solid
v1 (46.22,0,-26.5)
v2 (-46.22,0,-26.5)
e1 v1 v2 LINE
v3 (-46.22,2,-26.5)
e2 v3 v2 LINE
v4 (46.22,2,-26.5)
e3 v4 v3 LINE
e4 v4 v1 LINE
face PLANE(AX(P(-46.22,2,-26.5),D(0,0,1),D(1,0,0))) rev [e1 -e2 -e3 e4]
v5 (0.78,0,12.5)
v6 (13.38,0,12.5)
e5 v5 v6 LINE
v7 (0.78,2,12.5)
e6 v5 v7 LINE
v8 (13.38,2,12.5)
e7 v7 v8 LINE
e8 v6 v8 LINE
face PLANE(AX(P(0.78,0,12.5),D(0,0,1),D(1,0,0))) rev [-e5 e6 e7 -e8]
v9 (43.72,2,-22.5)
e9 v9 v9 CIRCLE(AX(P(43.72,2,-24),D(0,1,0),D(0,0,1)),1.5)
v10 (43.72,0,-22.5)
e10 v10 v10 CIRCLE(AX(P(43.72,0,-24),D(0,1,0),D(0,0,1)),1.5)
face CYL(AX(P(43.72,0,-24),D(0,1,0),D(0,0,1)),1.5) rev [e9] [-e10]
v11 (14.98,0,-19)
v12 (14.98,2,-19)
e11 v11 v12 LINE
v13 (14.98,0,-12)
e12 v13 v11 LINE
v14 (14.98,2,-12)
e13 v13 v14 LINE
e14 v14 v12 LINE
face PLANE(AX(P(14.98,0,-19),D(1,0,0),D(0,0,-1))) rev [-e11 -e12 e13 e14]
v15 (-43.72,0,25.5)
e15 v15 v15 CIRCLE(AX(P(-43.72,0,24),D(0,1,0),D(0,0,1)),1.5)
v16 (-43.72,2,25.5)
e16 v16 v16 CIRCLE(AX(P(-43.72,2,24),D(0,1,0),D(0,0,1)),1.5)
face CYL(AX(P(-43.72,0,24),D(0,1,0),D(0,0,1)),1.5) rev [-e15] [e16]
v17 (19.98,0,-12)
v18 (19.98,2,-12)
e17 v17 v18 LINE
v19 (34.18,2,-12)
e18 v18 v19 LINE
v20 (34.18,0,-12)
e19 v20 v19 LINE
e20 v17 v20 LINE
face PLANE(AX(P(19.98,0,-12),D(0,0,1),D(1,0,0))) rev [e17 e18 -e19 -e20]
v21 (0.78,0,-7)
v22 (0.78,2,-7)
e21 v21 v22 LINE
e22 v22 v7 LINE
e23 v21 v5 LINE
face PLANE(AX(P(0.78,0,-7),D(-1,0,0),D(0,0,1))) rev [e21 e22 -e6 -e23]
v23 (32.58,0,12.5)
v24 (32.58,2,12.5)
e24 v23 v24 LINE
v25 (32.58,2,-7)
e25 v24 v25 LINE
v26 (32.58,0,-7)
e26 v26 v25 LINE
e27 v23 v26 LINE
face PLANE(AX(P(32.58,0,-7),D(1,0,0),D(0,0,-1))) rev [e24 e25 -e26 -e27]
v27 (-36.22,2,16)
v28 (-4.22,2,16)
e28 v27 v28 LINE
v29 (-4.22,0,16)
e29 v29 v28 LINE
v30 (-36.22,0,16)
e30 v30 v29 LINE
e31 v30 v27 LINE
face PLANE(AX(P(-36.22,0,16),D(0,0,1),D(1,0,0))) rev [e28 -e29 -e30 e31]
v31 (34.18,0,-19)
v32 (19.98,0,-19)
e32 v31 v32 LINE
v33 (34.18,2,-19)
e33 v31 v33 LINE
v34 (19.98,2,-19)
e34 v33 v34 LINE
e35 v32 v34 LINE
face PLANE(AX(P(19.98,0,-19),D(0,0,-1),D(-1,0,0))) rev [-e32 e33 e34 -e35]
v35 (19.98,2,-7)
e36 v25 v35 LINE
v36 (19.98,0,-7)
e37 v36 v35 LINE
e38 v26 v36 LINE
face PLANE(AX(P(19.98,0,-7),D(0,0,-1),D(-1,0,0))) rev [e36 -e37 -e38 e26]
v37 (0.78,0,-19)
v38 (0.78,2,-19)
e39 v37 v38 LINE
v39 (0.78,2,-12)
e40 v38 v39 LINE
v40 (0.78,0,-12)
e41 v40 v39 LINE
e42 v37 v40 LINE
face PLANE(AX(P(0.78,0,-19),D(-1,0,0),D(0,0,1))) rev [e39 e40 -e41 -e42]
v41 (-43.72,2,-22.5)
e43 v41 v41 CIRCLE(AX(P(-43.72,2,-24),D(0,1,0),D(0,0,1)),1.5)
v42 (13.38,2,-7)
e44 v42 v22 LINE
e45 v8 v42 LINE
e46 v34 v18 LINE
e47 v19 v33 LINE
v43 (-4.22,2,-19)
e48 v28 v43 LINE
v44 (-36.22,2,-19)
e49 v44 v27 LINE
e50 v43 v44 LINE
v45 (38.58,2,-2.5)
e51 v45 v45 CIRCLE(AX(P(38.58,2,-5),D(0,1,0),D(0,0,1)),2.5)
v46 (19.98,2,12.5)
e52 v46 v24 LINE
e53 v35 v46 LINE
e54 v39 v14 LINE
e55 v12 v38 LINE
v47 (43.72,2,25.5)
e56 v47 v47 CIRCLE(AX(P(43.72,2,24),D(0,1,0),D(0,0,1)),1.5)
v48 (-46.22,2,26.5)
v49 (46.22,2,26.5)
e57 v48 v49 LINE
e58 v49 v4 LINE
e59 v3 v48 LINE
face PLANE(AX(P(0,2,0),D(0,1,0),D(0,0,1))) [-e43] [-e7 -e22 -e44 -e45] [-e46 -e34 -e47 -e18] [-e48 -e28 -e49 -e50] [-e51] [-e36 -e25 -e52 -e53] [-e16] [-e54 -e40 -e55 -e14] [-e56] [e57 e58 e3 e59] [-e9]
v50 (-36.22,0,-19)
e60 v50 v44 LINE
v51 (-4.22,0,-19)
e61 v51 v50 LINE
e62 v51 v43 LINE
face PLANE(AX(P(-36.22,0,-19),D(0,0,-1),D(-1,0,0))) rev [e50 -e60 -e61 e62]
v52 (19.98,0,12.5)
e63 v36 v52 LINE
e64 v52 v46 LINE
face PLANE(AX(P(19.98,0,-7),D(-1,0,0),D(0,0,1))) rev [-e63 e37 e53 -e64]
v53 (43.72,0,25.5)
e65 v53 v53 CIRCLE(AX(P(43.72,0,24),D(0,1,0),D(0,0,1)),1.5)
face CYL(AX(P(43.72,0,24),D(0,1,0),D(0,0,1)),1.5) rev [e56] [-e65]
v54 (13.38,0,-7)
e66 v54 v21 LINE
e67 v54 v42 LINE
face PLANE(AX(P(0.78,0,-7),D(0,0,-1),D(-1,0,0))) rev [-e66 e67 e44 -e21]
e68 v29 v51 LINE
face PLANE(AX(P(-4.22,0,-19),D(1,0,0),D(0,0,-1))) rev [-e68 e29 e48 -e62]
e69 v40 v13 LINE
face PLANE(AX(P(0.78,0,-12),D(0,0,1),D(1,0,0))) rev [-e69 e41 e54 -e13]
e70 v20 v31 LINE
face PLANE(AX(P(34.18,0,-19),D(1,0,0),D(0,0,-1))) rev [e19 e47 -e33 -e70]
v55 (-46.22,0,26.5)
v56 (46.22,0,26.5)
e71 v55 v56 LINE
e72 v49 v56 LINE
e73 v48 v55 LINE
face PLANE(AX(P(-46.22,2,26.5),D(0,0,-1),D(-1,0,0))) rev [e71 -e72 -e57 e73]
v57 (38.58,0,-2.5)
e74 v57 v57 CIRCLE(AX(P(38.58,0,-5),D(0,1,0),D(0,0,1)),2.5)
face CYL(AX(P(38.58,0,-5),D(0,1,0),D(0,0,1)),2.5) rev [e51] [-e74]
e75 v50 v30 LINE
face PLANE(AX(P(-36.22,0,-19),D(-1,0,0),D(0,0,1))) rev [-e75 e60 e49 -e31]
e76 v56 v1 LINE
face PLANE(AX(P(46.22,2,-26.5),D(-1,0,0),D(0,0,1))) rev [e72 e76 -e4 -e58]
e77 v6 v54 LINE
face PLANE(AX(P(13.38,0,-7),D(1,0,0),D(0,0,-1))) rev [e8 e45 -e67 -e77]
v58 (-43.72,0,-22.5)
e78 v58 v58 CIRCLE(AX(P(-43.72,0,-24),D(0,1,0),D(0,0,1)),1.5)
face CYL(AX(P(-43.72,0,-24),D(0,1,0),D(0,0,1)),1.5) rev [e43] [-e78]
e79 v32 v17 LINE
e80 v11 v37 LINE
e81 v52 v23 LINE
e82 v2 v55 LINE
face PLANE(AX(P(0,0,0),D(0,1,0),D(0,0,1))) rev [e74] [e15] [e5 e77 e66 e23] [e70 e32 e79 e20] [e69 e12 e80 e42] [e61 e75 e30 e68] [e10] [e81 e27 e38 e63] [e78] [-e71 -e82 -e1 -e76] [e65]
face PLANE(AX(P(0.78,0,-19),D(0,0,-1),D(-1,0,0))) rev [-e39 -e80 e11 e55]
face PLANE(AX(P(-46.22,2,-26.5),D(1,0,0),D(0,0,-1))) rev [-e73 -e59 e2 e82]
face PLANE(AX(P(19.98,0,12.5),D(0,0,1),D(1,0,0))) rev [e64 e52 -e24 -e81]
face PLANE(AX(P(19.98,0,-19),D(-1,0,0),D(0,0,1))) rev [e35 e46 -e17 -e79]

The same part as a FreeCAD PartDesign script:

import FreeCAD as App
import Part
import Sketcher

V = App.Vector


def add_polygon(sketch, points):
    """Adds a closed chain of lines whose ends are joined by coincident constraints."""
    first, n = sketch.GeometryCount, len(points)
    for a, b in zip(points, points[1:] + points[:1]):
        sketch.addGeometry(Part.LineSegment(App.Vector(*a, 0), App.Vector(*b, 0)), False)
    for i in range(n):
        sketch.addConstraint(Sketcher.Constraint("Coincident", first + i, 2, first + (i + 1) % n, 1))

doc = App.newDocument("Part")
body = doc.addObject("PartDesign::Body", "Body")

sketch1 = body.newObject("Sketcher::SketchObject", "Sketch")
sketch1.AttachmentSupport = (doc.getObject("XZ_Plane"), [""])
sketch1.MapMode = "FlatFace"
add_polygon(sketch1, [(-46, -26), (-46, 26), (46, 26), (46, -26)])
sketch1.addConstraint(Sketcher.Constraint("Vertical", 0))
sketch1.addConstraint(Sketcher.Constraint("Horizontal", 1))
sketch1.addConstraint(Sketcher.Constraint("Vertical", 2))
sketch1.addConstraint(Sketcher.Constraint("Horizontal", 3))
sketch1.addConstraint(Sketcher.Constraint("Symmetric", 0, 2, 2, 2, -1, 1))
sketch1.addConstraint(Sketcher.Constraint("DistanceY", 0, 1, 0, 2, 53.0))
sketch1.addConstraint(Sketcher.Constraint("DistanceX", 1, 1, 1, 2, 92.44))
pad1 = body.newObject("PartDesign::Pad", "Pad")
pad1.Profile = sketch1
pad1.Length = 2
pad1.Reversed = True

sketch2 = body.newObject("Sketcher::SketchObject", "Sketch001")
sketch2.AttachmentSupport = (doc.getObject("XZ_Plane"), [""])
sketch2.MapMode = "FlatFace"
sketch2.AttachmentOffset = App.Placement(V(0, 0, -2), App.Rotation())
sketch2.addGeometry(Part.Circle(V(-43.7, -24, 0), V(0, 0, 1), 1.5), False)
sketch2.addGeometry(Part.Circle(V(43.7, -24, 0), V(0, 0, 1), 1.5), False)
sketch2.addGeometry(Part.Circle(V(43.7, 24, 0), V(0, 0, 1), 1.5), False)
sketch2.addGeometry(Part.Circle(V(-43.7, 24, 0), V(0, 0, 1), 1.5), False)
sketch2.addConstraint(Sketcher.Constraint("Equal", 0, 1))
sketch2.addConstraint(Sketcher.Constraint("Equal", 1, 2))
sketch2.addConstraint(Sketcher.Constraint("Equal", 2, 3))
sketch2.addConstraint(Sketcher.Constraint("Symmetric", 0, 3, 2, 3, -1, 1))
sketch2.addConstraint(Sketcher.Constraint("Symmetric", 1, 3, 3, 3, -1, 1))
sketch2.addConstraint(Sketcher.Constraint("Symmetric", 0, 3, 1, 3, -2))
sketch2.addConstraint(Sketcher.Constraint("Diameter", 0, 3.0))
sketch2.addConstraint(Sketcher.Constraint("DistanceY", 0, 3, -1, 1, 24.0))
sketch2.addConstraint(Sketcher.Constraint("DistanceX", 0, 3, -1, 1, 43.72))
pocket1 = body.newObject("PartDesign::Pocket", "Pocket")
pocket1.Profile = sketch2
pocket1.Type = "ThroughAll"
pocket1.Reversed = True

sketch3 = body.newObject("Sketcher::SketchObject", "Sketch002")
sketch3.AttachmentSupport = (doc.getObject("XZ_Plane"), [""])
sketch3.MapMode = "FlatFace"
sketch3.AttachmentOffset = App.Placement(V(0, 0, -2), App.Rotation())
sketch3.addGeometry(Part.Circle(V(38.6, -5, 0), V(0, 0, 1), 2.5), False)
add_polygon(sketch3, [(-36.2, -19), (-36.2, 16), (-4.2, 16), (-4.2, -19)])
add_polygon(sketch3, [(0.8, -19), (0.8, -12), (15, -12), (15, -19)])
add_polygon(sketch3, [(20, -19), (20, -12), (34.2, -12), (34.2, -19)])
add_polygon(sketch3, [(0.8, -7), (0.8, 12.5), (13.4, 12.5), (13.4, -7)])
add_polygon(sketch3, [(20, -7), (20, 12.5), (32.6, 12.5), (32.6, -7)])
sketch3.addConstraint(Sketcher.Constraint("Vertical", 1))
sketch3.addConstraint(Sketcher.Constraint("Horizontal", 2))
sketch3.addConstraint(Sketcher.Constraint("Vertical", 3))
sketch3.addConstraint(Sketcher.Constraint("Horizontal", 4))
sketch3.addConstraint(Sketcher.Constraint("Vertical", 5))
sketch3.addConstraint(Sketcher.Constraint("Horizontal", 6))
sketch3.addConstraint(Sketcher.Constraint("Vertical", 7))
sketch3.addConstraint(Sketcher.Constraint("Horizontal", 8))
sketch3.addConstraint(Sketcher.Constraint("Vertical", 9))
sketch3.addConstraint(Sketcher.Constraint("Horizontal", 10))
sketch3.addConstraint(Sketcher.Constraint("Vertical", 11))
sketch3.addConstraint(Sketcher.Constraint("Horizontal", 12))
sketch3.addConstraint(Sketcher.Constraint("Vertical", 13))
sketch3.addConstraint(Sketcher.Constraint("Horizontal", 14))
sketch3.addConstraint(Sketcher.Constraint("Vertical", 15))
sketch3.addConstraint(Sketcher.Constraint("Horizontal", 16))
sketch3.addConstraint(Sketcher.Constraint("Vertical", 17))
sketch3.addConstraint(Sketcher.Constraint("Horizontal", 18))
sketch3.addConstraint(Sketcher.Constraint("Vertical", 19))
sketch3.addConstraint(Sketcher.Constraint("Horizontal", 20))
sketch3.addConstraint(Sketcher.Constraint("Horizontal", 4, 2, 7, 2))
sketch3.addConstraint(Sketcher.Constraint("Horizontal", 6, 2, 9, 2))
sketch3.addConstraint(Sketcher.Constraint("Horizontal", 8, 2, 11, 2))
sketch3.addConstraint(Sketcher.Constraint("Horizontal", 14, 2, 17, 2))
sketch3.addConstraint(Sketcher.Constraint("Horizontal", 16, 2, 19, 2))
sketch3.addConstraint(Sketcher.Constraint("Vertical", 8, 2, 13, 2))
sketch3.addConstraint(Sketcher.Constraint("Vertical", 12, 2, 17, 2))
sketch3.addConstraint(Sketcher.Constraint("Equal", 8, 10))
sketch3.addConstraint(Sketcher.Constraint("Equal", 16, 18))
sketch3.addConstraint(Sketcher.Constraint("Diameter", 0, 5.0))
sketch3.addConstraint(Sketcher.Constraint("DistanceX", 2, 1, 2, 2, 32.0))
sketch3.addConstraint(Sketcher.Constraint("DistanceY", 1, 1, 1, 2, 35.0))
sketch3.addConstraint(Sketcher.Constraint("DistanceY", 5, 1, 5, 2, 7.0))
sketch3.addConstraint(Sketcher.Constraint("DistanceX", 6, 1, 6, 2, 14.2))
sketch3.addConstraint(Sketcher.Constraint("DistanceX", 14, 1, 14, 2, 12.6))
sketch3.addConstraint(Sketcher.Constraint("DistanceY", 13, 1, 13, 2, 19.5))
sketch3.addConstraint(Sketcher.Constraint("DistanceY", 0, 3, -1, 1, 5.0))
sketch3.addConstraint(Sketcher.Constraint("DistanceY", -1, 1, 1, 2, 16.0))
sketch3.addConstraint(Sketcher.Constraint("DistanceY", 15, 2, -1, 1, 7.0))
sketch3.addConstraint(Sketcher.Constraint("DistanceX", 3, 2, 5, 2, 5.0))
sketch3.addConstraint(Sketcher.Constraint("DistanceX", 6, 2, 9, 2, 5.0))
sketch3.addConstraint(Sketcher.Constraint("DistanceX", 18, 2, 0, 3, 6.0))
sketch3.addConstraint(Sketcher.Constraint("DistanceX", -1, 1, 0, 3, 38.58))
pocket2 = body.newObject("PartDesign::Pocket", "Pocket001")
pocket2.Profile = sketch3
pocket2.Type = "ThroughAll"
pocket2.Reversed = True

doc.recompute()
